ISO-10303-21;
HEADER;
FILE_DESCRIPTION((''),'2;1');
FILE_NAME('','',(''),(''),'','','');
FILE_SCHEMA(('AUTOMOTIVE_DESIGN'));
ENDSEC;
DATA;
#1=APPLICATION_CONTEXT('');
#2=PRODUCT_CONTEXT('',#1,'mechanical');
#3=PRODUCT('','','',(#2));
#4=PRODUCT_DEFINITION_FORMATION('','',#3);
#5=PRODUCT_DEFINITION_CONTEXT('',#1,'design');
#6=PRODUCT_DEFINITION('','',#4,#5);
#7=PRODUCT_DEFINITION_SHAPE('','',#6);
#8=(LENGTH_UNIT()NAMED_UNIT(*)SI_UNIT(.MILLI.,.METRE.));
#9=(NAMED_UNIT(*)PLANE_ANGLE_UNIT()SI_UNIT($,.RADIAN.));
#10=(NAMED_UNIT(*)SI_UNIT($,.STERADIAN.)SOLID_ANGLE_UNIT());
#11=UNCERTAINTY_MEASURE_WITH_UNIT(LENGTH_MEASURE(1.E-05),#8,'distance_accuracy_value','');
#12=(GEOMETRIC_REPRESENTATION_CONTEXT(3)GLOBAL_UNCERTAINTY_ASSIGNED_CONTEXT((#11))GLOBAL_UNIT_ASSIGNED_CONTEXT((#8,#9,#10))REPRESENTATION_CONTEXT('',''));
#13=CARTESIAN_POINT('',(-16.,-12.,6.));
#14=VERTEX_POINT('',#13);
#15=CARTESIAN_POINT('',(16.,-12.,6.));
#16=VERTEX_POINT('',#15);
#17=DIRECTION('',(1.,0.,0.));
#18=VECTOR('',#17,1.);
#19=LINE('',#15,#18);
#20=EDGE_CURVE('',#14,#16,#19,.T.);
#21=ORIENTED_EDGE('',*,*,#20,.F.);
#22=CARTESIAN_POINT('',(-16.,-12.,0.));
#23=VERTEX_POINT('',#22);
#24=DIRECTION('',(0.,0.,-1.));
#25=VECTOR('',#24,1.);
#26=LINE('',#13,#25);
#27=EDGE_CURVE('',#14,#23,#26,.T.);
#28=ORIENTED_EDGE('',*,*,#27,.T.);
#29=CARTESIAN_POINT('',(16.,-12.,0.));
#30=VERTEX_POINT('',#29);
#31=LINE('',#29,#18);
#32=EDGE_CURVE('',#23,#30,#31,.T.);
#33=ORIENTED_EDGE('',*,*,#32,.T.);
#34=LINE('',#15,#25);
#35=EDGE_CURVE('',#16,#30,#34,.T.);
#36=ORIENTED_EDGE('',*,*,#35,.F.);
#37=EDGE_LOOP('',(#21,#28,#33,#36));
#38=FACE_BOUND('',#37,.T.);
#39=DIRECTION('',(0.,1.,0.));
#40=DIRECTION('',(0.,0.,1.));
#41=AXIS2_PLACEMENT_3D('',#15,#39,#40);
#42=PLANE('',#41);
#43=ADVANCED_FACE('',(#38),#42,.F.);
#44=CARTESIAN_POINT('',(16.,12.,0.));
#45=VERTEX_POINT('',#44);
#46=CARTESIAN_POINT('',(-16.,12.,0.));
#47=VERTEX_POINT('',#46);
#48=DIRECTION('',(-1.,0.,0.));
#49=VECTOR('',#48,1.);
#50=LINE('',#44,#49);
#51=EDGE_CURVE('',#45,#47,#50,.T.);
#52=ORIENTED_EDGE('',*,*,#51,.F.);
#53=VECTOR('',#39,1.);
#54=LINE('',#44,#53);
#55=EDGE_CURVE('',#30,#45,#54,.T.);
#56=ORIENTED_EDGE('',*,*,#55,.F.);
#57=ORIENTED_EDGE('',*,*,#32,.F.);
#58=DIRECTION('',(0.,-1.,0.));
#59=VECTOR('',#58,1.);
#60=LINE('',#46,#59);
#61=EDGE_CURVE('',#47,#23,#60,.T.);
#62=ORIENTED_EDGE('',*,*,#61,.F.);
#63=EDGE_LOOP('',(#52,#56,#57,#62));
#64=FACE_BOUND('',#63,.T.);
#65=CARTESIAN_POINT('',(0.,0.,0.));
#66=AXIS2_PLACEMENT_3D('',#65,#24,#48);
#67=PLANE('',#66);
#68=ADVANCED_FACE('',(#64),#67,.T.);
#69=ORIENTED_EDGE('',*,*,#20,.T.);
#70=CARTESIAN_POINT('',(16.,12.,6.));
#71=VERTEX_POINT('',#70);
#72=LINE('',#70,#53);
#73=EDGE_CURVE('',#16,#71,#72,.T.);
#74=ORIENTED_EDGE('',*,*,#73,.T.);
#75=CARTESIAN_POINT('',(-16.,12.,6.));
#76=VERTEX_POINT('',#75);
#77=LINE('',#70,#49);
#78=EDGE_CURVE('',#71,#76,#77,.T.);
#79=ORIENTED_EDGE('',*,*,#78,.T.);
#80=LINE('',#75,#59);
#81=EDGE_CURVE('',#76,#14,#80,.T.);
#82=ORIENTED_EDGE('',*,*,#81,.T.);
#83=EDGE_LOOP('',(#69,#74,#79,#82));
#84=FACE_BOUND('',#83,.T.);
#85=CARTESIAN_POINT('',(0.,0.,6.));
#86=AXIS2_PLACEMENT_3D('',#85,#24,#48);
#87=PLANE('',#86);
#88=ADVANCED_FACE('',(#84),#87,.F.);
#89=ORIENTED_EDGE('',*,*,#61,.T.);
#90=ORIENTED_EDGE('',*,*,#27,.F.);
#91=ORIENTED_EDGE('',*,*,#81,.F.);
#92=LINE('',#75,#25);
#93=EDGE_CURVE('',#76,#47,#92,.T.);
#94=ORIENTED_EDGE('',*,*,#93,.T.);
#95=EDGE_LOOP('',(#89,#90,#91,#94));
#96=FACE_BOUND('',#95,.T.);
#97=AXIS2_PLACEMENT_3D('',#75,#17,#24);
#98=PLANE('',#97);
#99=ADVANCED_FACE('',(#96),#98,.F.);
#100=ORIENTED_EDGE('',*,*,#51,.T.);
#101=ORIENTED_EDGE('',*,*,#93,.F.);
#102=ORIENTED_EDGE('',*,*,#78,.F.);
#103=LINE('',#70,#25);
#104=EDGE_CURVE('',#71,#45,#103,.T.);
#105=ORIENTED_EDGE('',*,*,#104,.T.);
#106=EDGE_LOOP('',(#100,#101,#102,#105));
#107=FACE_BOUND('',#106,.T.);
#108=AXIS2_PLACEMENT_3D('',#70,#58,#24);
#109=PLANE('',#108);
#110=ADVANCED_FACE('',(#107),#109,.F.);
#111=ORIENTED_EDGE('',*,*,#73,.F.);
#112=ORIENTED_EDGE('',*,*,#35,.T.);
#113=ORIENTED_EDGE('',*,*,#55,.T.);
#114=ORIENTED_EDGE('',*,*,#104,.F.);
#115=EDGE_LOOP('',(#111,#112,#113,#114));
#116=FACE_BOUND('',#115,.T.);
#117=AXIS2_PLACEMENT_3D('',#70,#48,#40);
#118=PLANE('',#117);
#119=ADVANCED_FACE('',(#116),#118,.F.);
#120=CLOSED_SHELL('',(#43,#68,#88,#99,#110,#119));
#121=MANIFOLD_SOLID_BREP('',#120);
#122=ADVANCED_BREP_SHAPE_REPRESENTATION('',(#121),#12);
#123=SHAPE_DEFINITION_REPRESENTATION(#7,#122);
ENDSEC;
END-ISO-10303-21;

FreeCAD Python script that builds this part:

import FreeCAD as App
import Part
import Sketcher

doc = App.newDocument("Part")
params = doc.addObject("Spreadsheet::Sheet", "Params")
for row, (alias, value) in enumerate([
    ("sketch1_width", "32 mm"),
    ("sketch1_height", "24 mm"),
    ("pad1_length", "6 mm"),
], start=1):
    params.set(f"A{row}", alias)
    params.set(f"B{row}", "=" + value)
    params.setAlias(f"B{row}", alias)

body = doc.addObject("PartDesign::Body", "Body")

# Sketch on XY plane
sketch1 = body.newObject("Sketcher::SketchObject", "Sketch")
sketch1.AttachmentSupport = (doc.getObject("XY_Plane"), [""])
sketch1.MapMode = "FlatFace"
sketch1.addGeometry([
    Part.LineSegment(App.Vector(-16, 12, 0), App.Vector(-16, -12, 0)),
    Part.LineSegment(App.Vector(-16, -12, 0), App.Vector(16, -12, 0)),
    Part.LineSegment(App.Vector(16, -12, 0), App.Vector(16, 12, 0)),
    Part.LineSegment(App.Vector(16, 12, 0), App.Vector(-16, 12, 0)),
], False)
sketch1.addConstraint([
    Sketcher.Constraint("Coincident", 0, 2, 1, 1),
    Sketcher.Constraint("Coincident", 1, 2, 2, 1),
    Sketcher.Constraint("Coincident", 2, 2, 3, 1),
    Sketcher.Constraint("Coincident", 3, 2, 0, 1),
    Sketcher.Constraint("Vertical", 0),
    Sketcher.Constraint("Horizontal", 1),
    Sketcher.Constraint("Vertical", 2),
    Sketcher.Constraint("Horizontal", 3),
    Sketcher.Constraint("Symmetric", 0, 2, 2, 2, -1, 1),
    Sketcher.Constraint("DistanceX", 1, 1, 1, 2, 32.0),
    Sketcher.Constraint("DistanceY", 0, 2, 0, 1, 24.0),
])
sketch1.setExpression("Constraints[9]", "Params.sketch1_width")
sketch1.setExpression("Constraints[10]", "Params.sketch1_height")
pad1 = body.newObject("PartDesign::Pad", "Pad")
pad1.Profile = sketch1
pad1.setExpression("Length", "Params.pad1_length")

doc.recompute()
